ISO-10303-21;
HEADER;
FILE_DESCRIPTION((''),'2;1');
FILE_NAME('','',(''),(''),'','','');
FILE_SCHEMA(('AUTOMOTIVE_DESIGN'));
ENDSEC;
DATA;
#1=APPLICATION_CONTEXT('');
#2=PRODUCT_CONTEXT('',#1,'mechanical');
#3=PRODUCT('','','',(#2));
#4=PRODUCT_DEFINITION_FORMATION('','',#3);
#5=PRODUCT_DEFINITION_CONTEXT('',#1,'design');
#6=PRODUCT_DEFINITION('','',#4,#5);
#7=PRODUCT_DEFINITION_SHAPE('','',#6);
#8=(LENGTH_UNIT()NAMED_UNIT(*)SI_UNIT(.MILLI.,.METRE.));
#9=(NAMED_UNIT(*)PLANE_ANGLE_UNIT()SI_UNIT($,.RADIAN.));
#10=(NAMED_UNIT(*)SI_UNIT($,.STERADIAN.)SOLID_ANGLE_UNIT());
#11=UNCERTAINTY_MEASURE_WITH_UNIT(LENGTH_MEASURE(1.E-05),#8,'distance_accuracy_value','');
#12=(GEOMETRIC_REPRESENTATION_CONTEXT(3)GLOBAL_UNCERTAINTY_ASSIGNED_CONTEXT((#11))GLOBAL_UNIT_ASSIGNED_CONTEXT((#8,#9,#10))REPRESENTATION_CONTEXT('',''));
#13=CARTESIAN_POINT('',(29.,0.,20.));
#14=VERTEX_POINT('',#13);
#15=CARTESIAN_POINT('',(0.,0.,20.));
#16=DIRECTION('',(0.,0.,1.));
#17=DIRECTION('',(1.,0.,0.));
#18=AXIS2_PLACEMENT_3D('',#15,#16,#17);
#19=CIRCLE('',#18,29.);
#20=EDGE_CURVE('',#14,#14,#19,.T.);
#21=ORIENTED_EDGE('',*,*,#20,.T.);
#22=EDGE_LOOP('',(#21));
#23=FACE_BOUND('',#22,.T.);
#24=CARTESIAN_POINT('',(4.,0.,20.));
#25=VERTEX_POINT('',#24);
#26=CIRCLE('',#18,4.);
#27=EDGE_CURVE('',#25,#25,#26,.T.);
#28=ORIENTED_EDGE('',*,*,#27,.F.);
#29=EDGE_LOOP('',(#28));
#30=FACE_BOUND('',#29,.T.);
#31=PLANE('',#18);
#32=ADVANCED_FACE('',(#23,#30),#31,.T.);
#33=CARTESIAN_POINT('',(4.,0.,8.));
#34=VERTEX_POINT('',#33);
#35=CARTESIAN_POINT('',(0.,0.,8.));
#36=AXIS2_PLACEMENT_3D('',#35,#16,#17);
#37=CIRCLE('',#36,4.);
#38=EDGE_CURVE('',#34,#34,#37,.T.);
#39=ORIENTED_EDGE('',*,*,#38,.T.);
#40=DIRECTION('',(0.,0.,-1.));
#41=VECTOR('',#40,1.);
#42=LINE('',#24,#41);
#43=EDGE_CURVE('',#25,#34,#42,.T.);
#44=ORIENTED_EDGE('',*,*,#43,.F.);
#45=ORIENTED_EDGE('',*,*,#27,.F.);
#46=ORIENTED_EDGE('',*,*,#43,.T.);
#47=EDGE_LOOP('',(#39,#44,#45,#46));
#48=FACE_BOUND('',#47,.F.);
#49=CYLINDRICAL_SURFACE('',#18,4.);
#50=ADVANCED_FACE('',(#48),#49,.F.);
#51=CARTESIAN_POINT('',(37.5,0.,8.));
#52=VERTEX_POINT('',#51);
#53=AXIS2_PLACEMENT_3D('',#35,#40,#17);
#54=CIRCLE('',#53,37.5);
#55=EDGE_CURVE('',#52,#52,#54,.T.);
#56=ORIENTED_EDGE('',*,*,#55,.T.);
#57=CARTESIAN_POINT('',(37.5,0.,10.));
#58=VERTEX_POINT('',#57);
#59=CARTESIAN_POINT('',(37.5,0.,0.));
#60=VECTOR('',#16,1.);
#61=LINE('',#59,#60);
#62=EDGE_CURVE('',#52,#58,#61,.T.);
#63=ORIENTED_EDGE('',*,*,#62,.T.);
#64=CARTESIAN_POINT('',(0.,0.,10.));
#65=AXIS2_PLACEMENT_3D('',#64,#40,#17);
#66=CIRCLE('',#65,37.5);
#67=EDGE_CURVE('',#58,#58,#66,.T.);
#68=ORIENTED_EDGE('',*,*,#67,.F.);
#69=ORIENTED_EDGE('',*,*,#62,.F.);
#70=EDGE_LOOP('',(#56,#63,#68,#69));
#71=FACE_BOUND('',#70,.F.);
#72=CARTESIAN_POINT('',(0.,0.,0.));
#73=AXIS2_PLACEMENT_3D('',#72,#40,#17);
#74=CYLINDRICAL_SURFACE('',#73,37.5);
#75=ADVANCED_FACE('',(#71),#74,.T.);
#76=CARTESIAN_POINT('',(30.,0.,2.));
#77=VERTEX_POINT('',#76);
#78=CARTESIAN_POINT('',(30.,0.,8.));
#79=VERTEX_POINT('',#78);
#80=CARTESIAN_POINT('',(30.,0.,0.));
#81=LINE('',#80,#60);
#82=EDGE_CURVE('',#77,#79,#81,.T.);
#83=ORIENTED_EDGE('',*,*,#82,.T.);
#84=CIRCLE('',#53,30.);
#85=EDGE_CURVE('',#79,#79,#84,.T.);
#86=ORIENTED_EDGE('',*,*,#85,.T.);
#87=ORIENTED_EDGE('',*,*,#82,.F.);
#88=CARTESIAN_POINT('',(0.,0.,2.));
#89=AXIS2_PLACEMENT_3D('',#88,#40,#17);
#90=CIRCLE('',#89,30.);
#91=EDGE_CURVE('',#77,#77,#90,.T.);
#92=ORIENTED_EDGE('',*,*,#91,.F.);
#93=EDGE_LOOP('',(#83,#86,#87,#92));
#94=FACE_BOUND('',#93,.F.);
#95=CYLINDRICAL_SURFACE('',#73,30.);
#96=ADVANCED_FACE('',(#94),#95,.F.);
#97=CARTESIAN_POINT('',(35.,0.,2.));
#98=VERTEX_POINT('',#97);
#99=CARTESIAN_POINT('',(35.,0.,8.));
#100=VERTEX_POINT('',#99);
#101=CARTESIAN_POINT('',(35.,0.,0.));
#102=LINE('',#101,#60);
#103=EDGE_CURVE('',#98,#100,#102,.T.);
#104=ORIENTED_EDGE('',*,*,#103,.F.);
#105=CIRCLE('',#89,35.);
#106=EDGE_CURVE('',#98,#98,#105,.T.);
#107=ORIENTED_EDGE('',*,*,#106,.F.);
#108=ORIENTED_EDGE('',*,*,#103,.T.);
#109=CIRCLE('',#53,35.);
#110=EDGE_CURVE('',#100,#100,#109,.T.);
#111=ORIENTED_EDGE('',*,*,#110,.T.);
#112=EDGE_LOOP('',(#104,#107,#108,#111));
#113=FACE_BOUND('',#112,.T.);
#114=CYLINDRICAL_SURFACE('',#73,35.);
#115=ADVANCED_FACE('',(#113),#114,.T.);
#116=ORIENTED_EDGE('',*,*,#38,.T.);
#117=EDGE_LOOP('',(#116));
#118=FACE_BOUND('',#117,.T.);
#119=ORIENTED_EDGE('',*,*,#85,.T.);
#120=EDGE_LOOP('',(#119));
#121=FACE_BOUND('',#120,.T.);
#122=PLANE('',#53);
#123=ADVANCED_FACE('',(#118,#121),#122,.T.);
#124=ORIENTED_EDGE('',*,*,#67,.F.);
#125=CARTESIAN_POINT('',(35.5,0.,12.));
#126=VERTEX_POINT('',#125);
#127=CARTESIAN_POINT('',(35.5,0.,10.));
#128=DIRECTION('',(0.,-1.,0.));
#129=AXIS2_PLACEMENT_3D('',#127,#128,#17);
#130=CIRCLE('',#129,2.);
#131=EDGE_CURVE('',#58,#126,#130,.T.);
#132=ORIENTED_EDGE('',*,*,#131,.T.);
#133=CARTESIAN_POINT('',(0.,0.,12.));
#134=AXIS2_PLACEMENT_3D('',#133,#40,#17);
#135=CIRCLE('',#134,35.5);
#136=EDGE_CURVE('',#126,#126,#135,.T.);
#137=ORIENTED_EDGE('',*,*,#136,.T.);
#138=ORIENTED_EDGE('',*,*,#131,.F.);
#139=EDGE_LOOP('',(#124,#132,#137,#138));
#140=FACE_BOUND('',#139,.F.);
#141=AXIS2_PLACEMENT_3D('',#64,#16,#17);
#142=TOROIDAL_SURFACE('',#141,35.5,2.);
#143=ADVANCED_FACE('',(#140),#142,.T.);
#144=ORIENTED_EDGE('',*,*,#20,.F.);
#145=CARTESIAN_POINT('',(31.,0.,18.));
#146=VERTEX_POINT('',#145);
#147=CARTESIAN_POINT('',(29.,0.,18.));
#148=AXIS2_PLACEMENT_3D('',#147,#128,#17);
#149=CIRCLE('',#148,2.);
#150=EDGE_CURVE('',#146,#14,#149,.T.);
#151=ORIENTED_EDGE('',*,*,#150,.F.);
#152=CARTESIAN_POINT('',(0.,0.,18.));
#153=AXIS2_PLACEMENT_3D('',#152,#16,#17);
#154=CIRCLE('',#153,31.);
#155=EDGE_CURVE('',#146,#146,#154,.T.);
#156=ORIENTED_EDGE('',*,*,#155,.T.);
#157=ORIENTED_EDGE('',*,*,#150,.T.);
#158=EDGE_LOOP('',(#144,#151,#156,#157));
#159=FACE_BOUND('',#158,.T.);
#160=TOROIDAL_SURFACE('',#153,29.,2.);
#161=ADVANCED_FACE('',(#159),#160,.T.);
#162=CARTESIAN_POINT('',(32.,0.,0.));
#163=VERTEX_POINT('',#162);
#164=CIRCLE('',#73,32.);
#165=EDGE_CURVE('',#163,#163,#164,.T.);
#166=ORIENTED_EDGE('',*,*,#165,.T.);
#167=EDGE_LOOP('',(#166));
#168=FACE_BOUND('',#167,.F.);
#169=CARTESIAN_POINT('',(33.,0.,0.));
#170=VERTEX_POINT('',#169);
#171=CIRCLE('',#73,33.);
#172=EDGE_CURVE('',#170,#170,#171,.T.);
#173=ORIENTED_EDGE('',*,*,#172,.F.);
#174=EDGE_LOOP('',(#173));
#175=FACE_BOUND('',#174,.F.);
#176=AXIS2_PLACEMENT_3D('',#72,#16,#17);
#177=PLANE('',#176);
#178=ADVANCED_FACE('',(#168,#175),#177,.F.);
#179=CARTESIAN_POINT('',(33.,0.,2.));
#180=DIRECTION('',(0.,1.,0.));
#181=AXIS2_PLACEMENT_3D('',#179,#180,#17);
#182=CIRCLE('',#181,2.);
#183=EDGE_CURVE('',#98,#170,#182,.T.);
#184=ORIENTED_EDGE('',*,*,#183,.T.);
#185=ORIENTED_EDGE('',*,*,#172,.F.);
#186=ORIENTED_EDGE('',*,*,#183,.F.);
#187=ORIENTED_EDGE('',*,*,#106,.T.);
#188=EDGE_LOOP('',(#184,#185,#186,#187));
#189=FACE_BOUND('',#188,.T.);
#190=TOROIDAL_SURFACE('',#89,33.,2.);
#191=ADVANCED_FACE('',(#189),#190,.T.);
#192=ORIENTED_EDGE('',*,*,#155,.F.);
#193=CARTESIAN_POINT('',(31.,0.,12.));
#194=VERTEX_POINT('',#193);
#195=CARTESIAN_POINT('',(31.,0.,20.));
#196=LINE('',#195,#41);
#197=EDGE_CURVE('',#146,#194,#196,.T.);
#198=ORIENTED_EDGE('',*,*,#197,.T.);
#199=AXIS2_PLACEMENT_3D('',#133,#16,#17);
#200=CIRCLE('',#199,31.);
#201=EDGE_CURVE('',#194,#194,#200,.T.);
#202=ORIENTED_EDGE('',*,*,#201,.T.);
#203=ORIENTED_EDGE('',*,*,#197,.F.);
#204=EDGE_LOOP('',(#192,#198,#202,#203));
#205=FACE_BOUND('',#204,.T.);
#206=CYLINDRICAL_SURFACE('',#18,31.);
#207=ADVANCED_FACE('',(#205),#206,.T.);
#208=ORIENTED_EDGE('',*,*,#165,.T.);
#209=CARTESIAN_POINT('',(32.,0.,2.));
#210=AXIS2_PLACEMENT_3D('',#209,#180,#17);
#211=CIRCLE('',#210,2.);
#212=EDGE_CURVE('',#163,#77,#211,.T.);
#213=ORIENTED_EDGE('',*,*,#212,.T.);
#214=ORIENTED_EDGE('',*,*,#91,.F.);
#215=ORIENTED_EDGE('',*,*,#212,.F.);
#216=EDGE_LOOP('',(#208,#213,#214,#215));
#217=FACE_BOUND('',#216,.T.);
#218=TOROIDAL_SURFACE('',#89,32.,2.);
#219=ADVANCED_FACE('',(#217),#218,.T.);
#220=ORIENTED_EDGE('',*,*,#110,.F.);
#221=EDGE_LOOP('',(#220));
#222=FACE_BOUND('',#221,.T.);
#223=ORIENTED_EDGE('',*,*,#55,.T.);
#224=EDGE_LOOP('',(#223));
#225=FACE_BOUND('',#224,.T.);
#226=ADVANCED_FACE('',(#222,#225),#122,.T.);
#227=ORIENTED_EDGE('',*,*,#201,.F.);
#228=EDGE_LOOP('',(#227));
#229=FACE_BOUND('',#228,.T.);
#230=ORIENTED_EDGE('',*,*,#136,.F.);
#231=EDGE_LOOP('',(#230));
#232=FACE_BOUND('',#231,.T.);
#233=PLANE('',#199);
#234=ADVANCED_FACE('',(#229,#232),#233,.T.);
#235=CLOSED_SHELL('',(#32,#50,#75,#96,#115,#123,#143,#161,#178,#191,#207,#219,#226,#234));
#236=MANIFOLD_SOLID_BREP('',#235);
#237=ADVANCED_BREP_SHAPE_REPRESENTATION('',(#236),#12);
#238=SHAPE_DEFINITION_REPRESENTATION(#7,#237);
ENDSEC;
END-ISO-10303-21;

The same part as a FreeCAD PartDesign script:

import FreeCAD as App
import Part
import Sketcher


def edges_at(feature, points):
    """Names of the edges that pass closest to the given points."""
    edges = feature.Shape.Edges
    near = lambda p: min(range(len(edges)), key=lambda i: edges[i].distToShape(Part.Vertex(*p))[0])
    return sorted({f"Edge{near(p) + 1}" for p in points})

doc = App.newDocument("Part")
body = doc.addObject("PartDesign::Body", "Body")

sketch1 = body.newObject("Sketcher::SketchObject", "Sketch")
sketch1.AttachmentSupport = (doc.getObject("XY_Plane"), [""])
sketch1.MapMode = "FlatFace"
sketch1.addGeometry(Part.Circle(App.Vector(0, 0, 0), App.Vector(0, 0, 1), 38), False)
sketch1.addConstraint([
    Sketcher.Constraint("Coincident", 0, 3, -1, 1),
    Sketcher.Constraint("Diameter", 0, 75.0),
])
pad1 = body.newObject("PartDesign::Pad", "Pad")
pad1.Profile = sketch1
pad1.Length = 20

sketch2 = body.newObject("Sketcher::SketchObject", "Sketch001")
sketch2.AttachmentSupport = (doc.getObject("XY_Plane"), [""])
sketch2.MapMode = "FlatFace"
sketch2.AttachmentOffset = App.Placement(App.Vector(0, 0, 20), App.Rotation())
sketch2.addGeometry([
    Part.Circle(App.Vector(0, 0, 0), App.Vector(0, 0, 1), 42),
    Part.Circle(App.Vector(0, 0, 0), App.Vector(0, 0, 1), 31),
], False)
sketch2.addConstraint([
    Sketcher.Constraint("Coincident", 0, 3, -1, 1),
    Sketcher.Constraint("Coincident", 1, 3, -1, 1),
    Sketcher.Constraint("Diameter", 1, 62.0),
    Sketcher.Constraint("Diameter", 0, 83.590514),
])
pocket1 = body.newObject("PartDesign::Pocket", "Pocket")
pocket1.Profile = sketch2
pocket1.Length = 8

sketch3 = body.newObject("Sketcher::SketchObject", "Sketch002")
sketch3.AttachmentSupport = (doc.getObject("XY_Plane"), [""])
sketch3.MapMode = "FlatFace"
sketch3.addGeometry([
    Part.Circle(App.Vector(0, 0, 0), App.Vector(0, 0, 1), 44),
    Part.Circle(App.Vector(0, 0, 0), App.Vector(0, 0, 1), 35),
], False)
sketch3.addConstraint([
    Sketcher.Constraint("Coincident", 0, 3, -1, 1),
    Sketcher.Constraint("Coincident", 1, 3, -1, 1),
    Sketcher.Constraint("Diameter", 1, 70.0),
    Sketcher.Constraint("Diameter", 0, 87.266458),
])
pocket2 = body.newObject("PartDesign::Pocket", "Pocket001")
pocket2.Profile = sketch3
pocket2.Length = 8
pocket2.Reversed = True

sketch4 = body.newObject("Sketcher::SketchObject", "Sketch003")
sketch4.AttachmentSupport = (doc.getObject("XY_Plane"), [""])
sketch4.MapMode = "FlatFace"
sketch4.addGeometry(Part.Circle(App.Vector(0, 0, 0), App.Vector(0, 0, 1), 30), False)
sketch4.addConstraint([
    Sketcher.Constraint("Coincident", 0, 3, -1, 1),
    Sketcher.Constraint("Diameter", 0, 60.0),
])
pocket3 = body.newObject("PartDesign::Pocket", "Pocket002")
pocket3.Profile = sketch4
pocket3.Length = 8
pocket3.Reversed = True

sketch5 = body.newObject("Sketcher::SketchObject", "Sketch004")
sketch5.AttachmentSupport = (doc.getObject("XY_Plane"), [""])
sketch5.MapMode = "FlatFace"
sketch5.AttachmentOffset = App.Placement(App.Vector(0, 0, 20), App.Rotation())
sketch5.addGeometry(Part.Circle(App.Vector(0, 0, 0), App.Vector(0, 0, 1), 4), False)
sketch5.addConstraint([
    Sketcher.Constraint("Coincident", 0, 3, -1, 1),
    Sketcher.Constraint("Diameter", 0, 8.0),
])
pocket4 = body.newObject("PartDesign::Pocket", "Pocket003")
pocket4.Profile = sketch5
pocket4.Length = 20
doc.recompute()

fillet = body.newObject("PartDesign::Fillet", "Fillet")
fillet.Base = (pocket4, edges_at(pocket4, [
    (-31, 0, 20),
    (-37.5, 0, 12),
    (-30, 0, 0),
    (-35, 0, 0),
]))
fillet.Radius = 2

doc.recompute()
